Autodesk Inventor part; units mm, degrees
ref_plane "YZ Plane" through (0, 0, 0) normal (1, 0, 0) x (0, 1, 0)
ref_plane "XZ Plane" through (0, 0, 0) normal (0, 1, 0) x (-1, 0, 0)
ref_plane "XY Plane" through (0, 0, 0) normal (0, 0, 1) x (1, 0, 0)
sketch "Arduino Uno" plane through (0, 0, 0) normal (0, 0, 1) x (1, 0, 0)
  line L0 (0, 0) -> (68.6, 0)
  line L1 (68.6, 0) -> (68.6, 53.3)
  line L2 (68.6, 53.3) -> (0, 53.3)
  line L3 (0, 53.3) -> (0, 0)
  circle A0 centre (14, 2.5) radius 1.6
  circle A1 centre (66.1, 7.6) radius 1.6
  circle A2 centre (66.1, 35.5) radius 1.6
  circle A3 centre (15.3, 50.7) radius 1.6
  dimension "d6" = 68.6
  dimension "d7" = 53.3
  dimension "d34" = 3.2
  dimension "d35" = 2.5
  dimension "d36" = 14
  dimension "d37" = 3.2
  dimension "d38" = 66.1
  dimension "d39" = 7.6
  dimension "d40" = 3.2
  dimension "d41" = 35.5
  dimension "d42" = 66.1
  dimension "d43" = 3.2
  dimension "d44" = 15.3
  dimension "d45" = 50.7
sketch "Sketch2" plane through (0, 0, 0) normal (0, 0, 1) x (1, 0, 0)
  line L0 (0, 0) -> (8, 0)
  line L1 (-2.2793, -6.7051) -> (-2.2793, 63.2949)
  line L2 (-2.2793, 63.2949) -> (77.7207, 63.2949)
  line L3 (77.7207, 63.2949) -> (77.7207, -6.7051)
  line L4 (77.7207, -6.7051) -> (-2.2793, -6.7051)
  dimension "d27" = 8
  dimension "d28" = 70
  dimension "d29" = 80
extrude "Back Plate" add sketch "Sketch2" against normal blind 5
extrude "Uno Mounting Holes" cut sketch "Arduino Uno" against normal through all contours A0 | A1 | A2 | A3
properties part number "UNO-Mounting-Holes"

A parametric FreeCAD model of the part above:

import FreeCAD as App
import Part
import Sketcher
Q = App.Units.Quantity

doc = App.newDocument("Part")
body = doc.addObject("PartDesign::Body", "Body")

# Sketch on XY plane
sketch1 = doc.addObject("Sketcher::SketchObject", "Sketch")
body.addObject(sketch1)
sketch1.AttachmentSupport = (doc.XY_Plane, [""])
sketch1.MapMode = "FlatFace"
sketch1.addGeometry([
    Part.LineSegment(App.Vector(-2, 63, 0), App.Vector(-2, -7, 0)),
    Part.LineSegment(App.Vector(-2, -7, 0), App.Vector(78, -7, 0)),
    Part.LineSegment(App.Vector(78, -7, 0), App.Vector(78, 63, 0)),
    Part.LineSegment(App.Vector(78, 63, 0), App.Vector(-2, 63, 0)),
], False)
sketch1.addConstraint([
    Sketcher.Constraint("Coincident", 0, 2, 1, 1),
    Sketcher.Constraint("Coincident", 1, 2, 2, 1),
    Sketcher.Constraint("Coincident", 2, 2, 3, 1),
    Sketcher.Constraint("Coincident", 3, 2, 0, 1),
    Sketcher.Constraint("Vertical", 0),
    Sketcher.Constraint("Horizontal", 1),
    Sketcher.Constraint("Vertical", 2),
    Sketcher.Constraint("Horizontal", 3),
    Sketcher.Constraint("DistanceX", 1, 1, 1, 2, Q("80 mm")),
    Sketcher.Constraint("DistanceY", 0, 2, 0, 1, Q("70 mm")),
    Sketcher.Constraint("DistanceY", 0, 2, -1, 1, Q("6.705 mm")),
    Sketcher.Constraint("DistanceX", 0, 2, -1, 1, Q("2.2793 mm")),
])
pad1 = doc.addObject("PartDesign::Pad", "Pad")
body.addObject(pad1)
pad1.Profile = sketch1
pad1.Length = 5
pad1.Reversed = True

# Sketch on XY plane
sketch2 = doc.addObject("Sketcher::SketchObject", "Sketch001")
body.addObject(sketch2)
sketch2.AttachmentSupport = (doc.XY_Plane, [""])
sketch2.MapMode = "FlatFace"
sketch2.addGeometry([
    Part.Circle(App.Vector(14, 2.5, 0), App.Vector(0, 0, 1), 1.6),
    Part.Circle(App.Vector(66.1, 7.6, 0), App.Vector(0, 0, 1), 1.6),
    Part.Circle(App.Vector(66.1, 35.5, 0), App.Vector(0, 0, 1), 1.6),
    Part.Circle(App.Vector(15.3, 50.7, 0), App.Vector(0, 0, 1), 1.6),
], False)
sketch2.addConstraint([
    Sketcher.Constraint("Equal", 0, 1),
    Sketcher.Constraint("Equal", 1, 2),
    Sketcher.Constraint("Equal", 2, 3),
    Sketcher.Constraint("Vertical", 1, 3, 2, 3),
    Sketcher.Constraint("Diameter", 0, Q("3.2 mm")),
    Sketcher.Constraint("DistanceX", -1, 1, 0, 3, Q("14 mm")),
    Sketcher.Constraint("DistanceY", -1, 1, 0, 3, Q("2.5 mm")),
    Sketcher.Constraint("DistanceX", -1, 1, 1, 3, Q("66.1 mm")),
    Sketcher.Constraint("DistanceY", -1, 1, 1, 3, Q("7.6 mm")),
    Sketcher.Constraint("DistanceY", -1, 1, 2, 3, Q("35.5 mm")),
    Sketcher.Constraint("DistanceX", -1, 1, 3, 3, Q("15.3 mm")),
    Sketcher.Constraint("DistanceY", -1, 1, 3, 3, Q("50.7 mm")),
])
pocket1 = doc.addObject("PartDesign::Pocket", "Pocket")
body.addObject(pocket1)
pocket1.Profile = sketch2
pocket1.Type = "ThroughAll"

doc.recompute()
